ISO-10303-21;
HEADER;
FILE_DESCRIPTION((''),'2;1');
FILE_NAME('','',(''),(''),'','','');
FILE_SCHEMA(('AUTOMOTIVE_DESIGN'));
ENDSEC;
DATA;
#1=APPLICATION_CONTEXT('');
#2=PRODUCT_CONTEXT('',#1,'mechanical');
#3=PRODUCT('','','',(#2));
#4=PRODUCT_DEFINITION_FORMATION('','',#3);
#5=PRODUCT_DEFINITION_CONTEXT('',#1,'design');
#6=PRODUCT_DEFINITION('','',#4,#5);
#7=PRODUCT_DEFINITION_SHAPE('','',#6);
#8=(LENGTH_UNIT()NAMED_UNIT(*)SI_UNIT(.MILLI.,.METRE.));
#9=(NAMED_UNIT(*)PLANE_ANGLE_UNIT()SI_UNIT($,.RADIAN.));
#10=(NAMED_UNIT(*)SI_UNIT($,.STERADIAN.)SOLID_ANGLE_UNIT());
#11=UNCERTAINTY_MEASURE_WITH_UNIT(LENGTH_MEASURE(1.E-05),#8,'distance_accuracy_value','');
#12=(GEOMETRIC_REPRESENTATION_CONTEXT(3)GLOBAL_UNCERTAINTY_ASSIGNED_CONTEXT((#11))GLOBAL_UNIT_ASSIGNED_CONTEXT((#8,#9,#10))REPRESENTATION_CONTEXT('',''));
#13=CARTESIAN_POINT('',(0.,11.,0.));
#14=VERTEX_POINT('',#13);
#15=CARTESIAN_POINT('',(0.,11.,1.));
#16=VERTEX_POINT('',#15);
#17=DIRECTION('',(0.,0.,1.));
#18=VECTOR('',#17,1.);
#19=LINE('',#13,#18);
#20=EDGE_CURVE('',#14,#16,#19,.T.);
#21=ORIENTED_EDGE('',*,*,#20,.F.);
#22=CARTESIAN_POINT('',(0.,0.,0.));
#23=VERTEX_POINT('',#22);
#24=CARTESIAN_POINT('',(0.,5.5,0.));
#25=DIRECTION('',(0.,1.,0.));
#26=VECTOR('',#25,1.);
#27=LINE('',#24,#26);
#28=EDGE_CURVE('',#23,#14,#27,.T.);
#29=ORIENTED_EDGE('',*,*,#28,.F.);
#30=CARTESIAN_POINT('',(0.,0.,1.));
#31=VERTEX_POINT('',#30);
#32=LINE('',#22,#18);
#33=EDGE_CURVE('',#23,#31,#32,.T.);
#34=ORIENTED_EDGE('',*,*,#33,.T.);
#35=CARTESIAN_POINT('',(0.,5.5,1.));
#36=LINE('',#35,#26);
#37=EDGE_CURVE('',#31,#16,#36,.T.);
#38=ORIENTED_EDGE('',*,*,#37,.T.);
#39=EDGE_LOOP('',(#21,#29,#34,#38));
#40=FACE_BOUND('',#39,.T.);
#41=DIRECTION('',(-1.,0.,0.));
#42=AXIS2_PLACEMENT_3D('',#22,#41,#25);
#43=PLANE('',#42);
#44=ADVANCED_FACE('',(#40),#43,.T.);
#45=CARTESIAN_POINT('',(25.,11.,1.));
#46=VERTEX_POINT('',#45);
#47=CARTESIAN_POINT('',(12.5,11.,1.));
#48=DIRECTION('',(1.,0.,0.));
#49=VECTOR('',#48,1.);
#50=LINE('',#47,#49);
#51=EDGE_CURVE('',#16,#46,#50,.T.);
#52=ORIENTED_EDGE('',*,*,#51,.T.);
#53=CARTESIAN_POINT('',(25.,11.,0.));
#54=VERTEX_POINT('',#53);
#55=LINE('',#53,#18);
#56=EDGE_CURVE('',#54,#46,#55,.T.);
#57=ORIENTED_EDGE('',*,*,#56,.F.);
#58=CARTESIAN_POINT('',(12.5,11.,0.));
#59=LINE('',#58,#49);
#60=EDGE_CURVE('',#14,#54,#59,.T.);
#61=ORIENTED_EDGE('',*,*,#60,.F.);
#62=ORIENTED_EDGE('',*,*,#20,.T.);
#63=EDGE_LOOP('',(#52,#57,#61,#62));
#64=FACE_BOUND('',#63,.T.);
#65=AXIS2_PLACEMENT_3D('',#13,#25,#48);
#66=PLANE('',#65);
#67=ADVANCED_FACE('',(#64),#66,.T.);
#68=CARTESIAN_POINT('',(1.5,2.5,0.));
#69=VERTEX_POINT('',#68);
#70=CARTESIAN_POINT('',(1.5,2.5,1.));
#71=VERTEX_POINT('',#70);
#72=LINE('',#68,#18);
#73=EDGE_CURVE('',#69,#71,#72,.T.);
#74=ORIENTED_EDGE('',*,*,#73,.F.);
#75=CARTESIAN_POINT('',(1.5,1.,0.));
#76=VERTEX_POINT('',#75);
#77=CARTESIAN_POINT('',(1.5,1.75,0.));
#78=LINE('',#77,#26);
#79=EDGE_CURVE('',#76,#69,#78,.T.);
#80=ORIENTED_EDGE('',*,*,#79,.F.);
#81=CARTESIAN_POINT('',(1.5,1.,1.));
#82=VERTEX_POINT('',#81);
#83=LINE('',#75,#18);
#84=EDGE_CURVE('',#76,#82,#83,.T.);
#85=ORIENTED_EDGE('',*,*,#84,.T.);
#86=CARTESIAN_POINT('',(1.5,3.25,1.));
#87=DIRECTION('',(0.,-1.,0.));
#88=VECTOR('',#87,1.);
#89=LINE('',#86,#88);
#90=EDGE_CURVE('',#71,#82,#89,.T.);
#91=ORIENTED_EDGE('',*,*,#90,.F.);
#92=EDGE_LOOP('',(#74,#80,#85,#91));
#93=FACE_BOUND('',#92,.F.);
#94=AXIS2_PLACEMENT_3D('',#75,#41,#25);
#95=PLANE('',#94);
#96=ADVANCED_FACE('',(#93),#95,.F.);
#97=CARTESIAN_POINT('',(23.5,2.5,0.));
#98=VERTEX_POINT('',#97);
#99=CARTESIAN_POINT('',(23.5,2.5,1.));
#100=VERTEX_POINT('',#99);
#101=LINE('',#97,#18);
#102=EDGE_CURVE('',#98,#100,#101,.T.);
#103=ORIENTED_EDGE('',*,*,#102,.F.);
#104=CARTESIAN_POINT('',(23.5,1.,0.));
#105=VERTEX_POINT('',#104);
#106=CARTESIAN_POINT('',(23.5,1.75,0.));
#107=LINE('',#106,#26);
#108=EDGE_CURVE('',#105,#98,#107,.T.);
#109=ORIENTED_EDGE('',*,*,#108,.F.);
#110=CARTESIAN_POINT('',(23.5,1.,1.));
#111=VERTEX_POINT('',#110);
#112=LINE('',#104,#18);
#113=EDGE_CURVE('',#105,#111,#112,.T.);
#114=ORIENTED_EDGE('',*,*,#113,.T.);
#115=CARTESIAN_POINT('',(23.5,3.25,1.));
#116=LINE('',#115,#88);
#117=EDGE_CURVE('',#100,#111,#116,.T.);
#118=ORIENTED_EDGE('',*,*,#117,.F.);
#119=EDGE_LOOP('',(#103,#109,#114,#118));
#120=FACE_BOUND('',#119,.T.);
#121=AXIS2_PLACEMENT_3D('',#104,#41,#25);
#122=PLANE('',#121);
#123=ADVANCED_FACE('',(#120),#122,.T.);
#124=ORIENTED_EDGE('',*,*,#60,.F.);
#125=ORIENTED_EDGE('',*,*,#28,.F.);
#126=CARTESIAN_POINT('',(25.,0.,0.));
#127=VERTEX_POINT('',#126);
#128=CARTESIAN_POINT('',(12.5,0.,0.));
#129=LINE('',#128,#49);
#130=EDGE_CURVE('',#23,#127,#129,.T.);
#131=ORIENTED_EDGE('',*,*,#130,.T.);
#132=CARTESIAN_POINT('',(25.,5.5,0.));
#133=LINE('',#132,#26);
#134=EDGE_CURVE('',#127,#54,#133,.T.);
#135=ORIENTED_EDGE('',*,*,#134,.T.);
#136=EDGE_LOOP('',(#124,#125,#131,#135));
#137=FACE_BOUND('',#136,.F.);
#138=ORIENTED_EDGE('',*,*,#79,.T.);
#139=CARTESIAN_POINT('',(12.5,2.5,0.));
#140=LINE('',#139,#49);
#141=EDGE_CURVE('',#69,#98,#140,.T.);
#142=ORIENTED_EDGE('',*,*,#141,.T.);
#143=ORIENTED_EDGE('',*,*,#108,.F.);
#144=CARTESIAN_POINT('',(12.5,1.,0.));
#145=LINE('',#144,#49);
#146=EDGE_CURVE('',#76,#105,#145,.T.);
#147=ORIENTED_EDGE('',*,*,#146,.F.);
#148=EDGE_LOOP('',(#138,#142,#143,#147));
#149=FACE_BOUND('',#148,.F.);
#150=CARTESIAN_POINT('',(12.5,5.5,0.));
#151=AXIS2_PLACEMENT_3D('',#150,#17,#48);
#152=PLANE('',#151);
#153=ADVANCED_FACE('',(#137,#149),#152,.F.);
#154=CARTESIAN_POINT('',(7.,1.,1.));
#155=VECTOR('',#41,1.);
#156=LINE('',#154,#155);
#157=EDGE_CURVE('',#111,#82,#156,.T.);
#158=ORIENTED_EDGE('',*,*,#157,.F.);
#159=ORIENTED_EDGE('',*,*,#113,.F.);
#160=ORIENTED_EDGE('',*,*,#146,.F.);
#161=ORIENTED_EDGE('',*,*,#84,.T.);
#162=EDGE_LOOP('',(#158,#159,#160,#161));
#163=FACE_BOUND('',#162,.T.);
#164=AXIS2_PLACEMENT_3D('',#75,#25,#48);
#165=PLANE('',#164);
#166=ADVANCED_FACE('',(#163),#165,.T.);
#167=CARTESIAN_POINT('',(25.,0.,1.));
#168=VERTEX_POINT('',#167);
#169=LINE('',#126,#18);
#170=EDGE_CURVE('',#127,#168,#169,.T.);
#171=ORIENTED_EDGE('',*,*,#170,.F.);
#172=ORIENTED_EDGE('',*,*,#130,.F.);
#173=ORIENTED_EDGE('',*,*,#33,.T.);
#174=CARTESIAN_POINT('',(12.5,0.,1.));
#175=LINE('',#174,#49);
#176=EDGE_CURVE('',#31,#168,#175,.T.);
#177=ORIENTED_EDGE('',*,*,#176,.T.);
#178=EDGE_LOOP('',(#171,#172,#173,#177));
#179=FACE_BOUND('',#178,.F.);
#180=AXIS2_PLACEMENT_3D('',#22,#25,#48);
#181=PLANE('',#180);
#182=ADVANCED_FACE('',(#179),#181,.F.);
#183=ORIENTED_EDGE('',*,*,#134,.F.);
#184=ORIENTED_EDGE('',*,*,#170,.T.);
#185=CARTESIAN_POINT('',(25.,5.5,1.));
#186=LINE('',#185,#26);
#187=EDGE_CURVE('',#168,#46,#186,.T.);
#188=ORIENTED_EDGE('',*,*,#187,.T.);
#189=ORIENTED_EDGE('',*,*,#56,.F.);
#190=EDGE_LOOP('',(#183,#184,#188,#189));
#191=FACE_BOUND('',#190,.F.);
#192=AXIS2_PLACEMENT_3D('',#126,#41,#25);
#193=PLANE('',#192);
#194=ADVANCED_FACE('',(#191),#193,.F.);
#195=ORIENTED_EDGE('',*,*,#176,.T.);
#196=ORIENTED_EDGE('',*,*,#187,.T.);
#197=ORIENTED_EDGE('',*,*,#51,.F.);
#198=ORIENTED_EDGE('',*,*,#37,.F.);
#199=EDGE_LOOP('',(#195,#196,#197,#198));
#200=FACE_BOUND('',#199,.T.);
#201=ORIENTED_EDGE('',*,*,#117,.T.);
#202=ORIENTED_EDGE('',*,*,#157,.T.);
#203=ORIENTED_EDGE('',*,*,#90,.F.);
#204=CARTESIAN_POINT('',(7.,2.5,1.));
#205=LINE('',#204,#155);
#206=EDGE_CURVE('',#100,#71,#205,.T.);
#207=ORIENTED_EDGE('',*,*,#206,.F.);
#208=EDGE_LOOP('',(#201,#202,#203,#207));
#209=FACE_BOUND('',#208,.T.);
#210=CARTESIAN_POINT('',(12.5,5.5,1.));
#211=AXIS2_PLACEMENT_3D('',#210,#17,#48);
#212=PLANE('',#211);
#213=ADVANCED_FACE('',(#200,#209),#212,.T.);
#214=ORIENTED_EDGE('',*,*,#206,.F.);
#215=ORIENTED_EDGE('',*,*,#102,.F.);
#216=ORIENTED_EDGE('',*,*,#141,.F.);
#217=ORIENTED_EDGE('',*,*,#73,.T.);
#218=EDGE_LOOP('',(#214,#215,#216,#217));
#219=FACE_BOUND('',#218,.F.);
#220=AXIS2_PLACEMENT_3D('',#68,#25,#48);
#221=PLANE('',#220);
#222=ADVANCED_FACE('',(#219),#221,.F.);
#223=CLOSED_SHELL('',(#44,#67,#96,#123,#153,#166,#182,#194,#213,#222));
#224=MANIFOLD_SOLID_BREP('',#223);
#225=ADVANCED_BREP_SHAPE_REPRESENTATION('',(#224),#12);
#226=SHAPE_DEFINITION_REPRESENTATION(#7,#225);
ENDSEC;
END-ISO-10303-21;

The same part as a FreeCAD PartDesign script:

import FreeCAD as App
import Part
import Sketcher
from FreeCAD import Vector
Q = App.Units.Quantity

doc = App.newDocument("Part")
params = doc.addObject("Spreadsheet::Sheet", "Params")
for row, (alias, value) in enumerate([
    ("sketch1_width", "22 mm"),
    ("sketch1_height", "1.5 mm"),
    ("pad1_length", "2 mm"),
    ("sketch2_width", "25 mm"),
    ("sketch2_height", "11 mm"),
    ("pad2_length", "1 mm"),
], start=1):
    params.set(f"A{row}", alias)
    params.set(f"B{row}", "=" + value)
    params.setAlias(f"B{row}", alias)

body = doc.addObject("PartDesign::Body", "Body")

# Sketch on XY plane
sketch1 = body.newObject("Sketcher::SketchObject", "Sketch")
sketch1.AttachmentSupport = (doc.getObject("XY_Plane"), [""])
sketch1.MapMode = "FlatFace"
sketch1.addGeometry([
    Part.LineSegment(Vector(1.5, 2.5, 0), Vector(1.5, 1, 0)),
    Part.LineSegment(Vector(1.5, 1, 0), Vector(23.5, 1, 0)),
    Part.LineSegment(Vector(23.5, 1, 0), Vector(23.5, 2.5, 0)),
    Part.LineSegment(Vector(23.5, 2.5, 0), Vector(1.5, 2.5, 0)),
], False)
sketch1.addConstraint([
    Sketcher.Constraint("Coincident", 0, 2, 1, 1),
    Sketcher.Constraint("Coincident", 1, 2, 2, 1),
    Sketcher.Constraint("Coincident", 2, 2, 3, 1),
    Sketcher.Constraint("Coincident", 3, 2, 0, 1),
    Sketcher.Constraint("Vertical", 0),
    Sketcher.Constraint("Horizontal", 1),
    Sketcher.Constraint("Vertical", 2),
    Sketcher.Constraint("Horizontal", 3),
    Sketcher.Constraint("DistanceX", 1, 1, 1, 2, Q("22 mm")),
    Sketcher.Constraint("DistanceY", 0, 2, 0, 1, Q("1.5 mm")),
    Sketcher.Constraint("DistanceY", -1, 1, 0, 2, Q("1 mm")),
    Sketcher.Constraint("DistanceX", -1, 1, 0, 2, Q("1.5 mm")),
])
sketch1.setExpression("Constraints[8]", "Params.sketch1_width")
sketch1.setExpression("Constraints[9]", "Params.sketch1_height")
pad1 = body.newObject("PartDesign::Pad", "Pad")
pad1.Profile = sketch1
pad1.setExpression("Length", "Params.pad1_length")
body2 = doc.addObject("PartDesign::Body", "Body001")

# Sketch on XY plane
sketch2 = body2.newObject("Sketcher::SketchObject", "Sketch001")
sketch2.AttachmentSupport = (doc.getObject("XY_Plane001"), [""])
sketch2.MapMode = "FlatFace"
sketch2.addGeometry([
    Part.LineSegment(Vector(0, 11, 0), Vector(0, 0, 0)),
    Part.LineSegment(Vector(0, 0, 0), Vector(25, 0, 0)),
    Part.LineSegment(Vector(25, 0, 0), Vector(25, 11, 0)),
    Part.LineSegment(Vector(25, 11, 0), Vector(0, 11, 0)),
], False)
sketch2.addConstraint([
    Sketcher.Constraint("Coincident", 0, 2, 1, 1),
    Sketcher.Constraint("Coincident", 1, 2, 2, 1),
    Sketcher.Constraint("Coincident", 2, 2, 3, 1),
    Sketcher.Constraint("Coincident", 3, 2, 0, 1),
    Sketcher.Constraint("Vertical", 0),
    Sketcher.Constraint("Horizontal", 1),
    Sketcher.Constraint("Vertical", 2),
    Sketcher.Constraint("Horizontal", 3),
    Sketcher.Constraint("Coincident", 0, 2, -1, 1),
    Sketcher.Constraint("DistanceX", 1, 1, 1, 2, Q("25 mm")),
    Sketcher.Constraint("DistanceY", 0, 2, 0, 1, Q("11 mm")),
])
sketch2.setExpression("Constraints[9]", "Params.sketch2_width")
sketch2.setExpression("Constraints[10]", "Params.sketch2_height")
pad2 = body2.newObject("PartDesign::Pad", "Pad001")
pad2.Profile = sketch2
pad2.setExpression("Length", "Params.pad2_length")
doc.recompute()

boolean = body2.newObject("PartDesign::Boolean", "Boolean")
boolean.Type = "Cut"
boolean.addObjects([body])

doc.recompute()
